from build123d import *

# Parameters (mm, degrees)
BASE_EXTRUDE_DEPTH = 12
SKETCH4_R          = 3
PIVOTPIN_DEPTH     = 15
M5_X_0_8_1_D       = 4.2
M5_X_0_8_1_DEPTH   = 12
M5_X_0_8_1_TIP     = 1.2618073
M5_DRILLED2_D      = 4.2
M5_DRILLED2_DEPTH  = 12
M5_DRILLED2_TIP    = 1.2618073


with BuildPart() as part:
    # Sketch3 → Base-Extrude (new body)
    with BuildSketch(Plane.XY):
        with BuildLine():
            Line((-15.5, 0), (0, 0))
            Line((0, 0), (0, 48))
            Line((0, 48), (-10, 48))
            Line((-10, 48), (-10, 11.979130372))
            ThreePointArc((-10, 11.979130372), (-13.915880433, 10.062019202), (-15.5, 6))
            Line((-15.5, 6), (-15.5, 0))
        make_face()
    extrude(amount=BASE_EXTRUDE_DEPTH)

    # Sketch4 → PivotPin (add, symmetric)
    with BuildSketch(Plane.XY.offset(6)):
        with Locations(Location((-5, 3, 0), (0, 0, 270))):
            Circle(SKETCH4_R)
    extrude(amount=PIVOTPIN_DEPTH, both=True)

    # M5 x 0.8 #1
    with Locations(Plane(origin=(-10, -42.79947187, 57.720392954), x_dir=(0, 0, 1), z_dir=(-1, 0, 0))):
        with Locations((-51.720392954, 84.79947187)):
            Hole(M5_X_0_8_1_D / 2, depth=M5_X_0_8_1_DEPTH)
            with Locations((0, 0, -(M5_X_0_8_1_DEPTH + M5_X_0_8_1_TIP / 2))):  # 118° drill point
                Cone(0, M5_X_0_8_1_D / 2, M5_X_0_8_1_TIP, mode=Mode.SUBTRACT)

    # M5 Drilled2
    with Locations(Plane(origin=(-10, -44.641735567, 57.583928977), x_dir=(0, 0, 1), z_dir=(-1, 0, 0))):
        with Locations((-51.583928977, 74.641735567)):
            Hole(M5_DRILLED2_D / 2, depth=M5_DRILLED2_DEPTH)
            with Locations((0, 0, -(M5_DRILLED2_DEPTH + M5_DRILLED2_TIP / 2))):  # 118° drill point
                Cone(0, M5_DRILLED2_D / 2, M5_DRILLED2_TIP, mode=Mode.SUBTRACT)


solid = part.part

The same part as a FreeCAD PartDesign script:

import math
import FreeCAD as App
import Part
import Sketcher
from FreeCAD import Vector
Q = App.Units.Quantity

doc = App.newDocument("Part")
body = doc.addObject("PartDesign::Body", "Body")

# Sketch on XY plane
sketch1 = body.newObject("Sketcher::SketchObject", "Sketch")
sketch1.AttachmentSupport = (doc.getObject("XY_Plane"), [""])
sketch1.MapMode = "FlatFace"
sketch1.addGeometry([
    Part.LineSegment(Vector(-16, 0, 0), Vector(0, 0, 0)),  # 0
    Part.LineSegment(Vector(0, 0, 0), Vector(0, 48, 0)),  # 1
    Part.LineSegment(Vector(0, 48, 0), Vector(-10, 48, 0)),  # 2
    Part.LineSegment(Vector(-10, 48, 0), Vector(-10, 12, 0)),  # 3
    Part.ArcOfCircle(Part.Circle(Vector(-9, 6, 0), Vector(0, 0, 1), 6), math.radians(95), math.radians(180)),  # 4
    Part.LineSegment(Vector(-16, 6, 0), Vector(-16, 0, 0)),  # 5
], False)
sketch1.addConstraint([
    Sketcher.Constraint("Coincident", 0, 2, 1, 1),
    Sketcher.Constraint("Coincident", 1, 2, 2, 1),
    Sketcher.Constraint("Coincident", 2, 2, 3, 1),
    Sketcher.Constraint("Coincident", 3, 2, 4, 1),
    Sketcher.Constraint("Tangent", 4, 2, 5, 1),
    Sketcher.Constraint("Coincident", 5, 2, 0, 1),
    Sketcher.Constraint("Horizontal", 0),
    Sketcher.Constraint("Vertical", 1),
    Sketcher.Constraint("Horizontal", 2),
    Sketcher.Constraint("Vertical", 3),
    Sketcher.Constraint("Vertical", 5),
    Sketcher.Constraint("Coincident", 0, 2, -1, 1),
    Sketcher.Constraint("Radius", 4, Q("6 mm")),
    Sketcher.Constraint("DistanceX", 2, 2, 2, 1, Q("10 mm")),
    Sketcher.Constraint("DistanceY", 1, 1, 1, 2, Q("48 mm")),
    Sketcher.Constraint("DistanceY", 5, 2, 5, 1, Q("6 mm")),
    Sketcher.Constraint("DistanceX", 0, 1, 0, 2, Q("15.5 mm")),
])
pad1 = body.newObject("PartDesign::Pad", "Pad")
pad1.Profile = sketch1
pad1.Length = 12

# Sketch on XY plane
sketch2 = body.newObject("Sketcher::SketchObject", "Sketch001")
sketch2.AttachmentSupport = (doc.getObject("XY_Plane"), [""])
sketch2.MapMode = "FlatFace"
sketch2.AttachmentOffset = App.Placement(Vector(0, 0, 6), App.Rotation())
sketch2.addGeometry(Part.Circle(Vector(-5, 3, 0), Vector(0, 0, 1), 3), False)
sketch2.addConstraint([
    Sketcher.Constraint("Diameter", 0, Q("6 mm")),
    Sketcher.Constraint("DistanceX", 0, 3, -1, 1, Q("5 mm")),
    Sketcher.Constraint("DistanceY", -1, 1, 0, 3, Q("3 mm")),
])
pad2 = body.newObject("PartDesign::Pad", "Pad001")
pad2.Profile = sketch2
pad2.Length = 30
pad2.Midplane = True

# Sketch on YZ plane
sketch3 = body.newObject("Sketcher::SketchObject", "Sketch002")
sketch3.AttachmentSupport = (doc.getObject("YZ_Plane"), [""])
sketch3.MapMode = "FlatFace"
sketch3.AttachmentOffset = App.Placement(Vector(0, 0, -10), App.Rotation())
sketch3.addGeometry(Part.Circle(Vector(42, 6, 0), Vector(0, 0, 1), 2.1), False)
sketch3.addConstraint([
    Sketcher.Constraint("Diameter", 0, Q("4.2 mm")),
    Sketcher.Constraint("DistanceX", -1, 1, 0, 3, Q("42 mm")),
    Sketcher.Constraint("DistanceY", -1, 1, 0, 3, Q("6 mm")),
])
doc.recompute()
hole = body.newObject("PartDesign::Hole", "Hole")
hole.Profile = sketch3
hole.ThreadType = "None"
hole.Diameter = 4.2
hole.DepthType = "Dimension"
hole.Depth = 12
hole.DrillPoint = "Angled"
hole.DrillPointAngle = 118
hole.Reversed = True

# Sketch on YZ plane
sketch4 = body.newObject("Sketcher::SketchObject", "Sketch003")
sketch4.AttachmentSupport = (doc.getObject("YZ_Plane"), [""])
sketch4.MapMode = "FlatFace"
sketch4.AttachmentOffset = App.Placement(Vector(0, 0, -10), App.Rotation())
sketch4.addGeometry(Part.Circle(Vector(30, 6, 0), Vector(0, 0, 1), 2.1), False)
sketch4.addConstraint([
    Sketcher.Constraint("Diameter", 0, Q("4.2 mm")),
    Sketcher.Constraint("DistanceX", -1, 1, 0, 3, Q("30 mm")),
    Sketcher.Constraint("DistanceY", -1, 1, 0, 3, Q("6 mm")),
])
doc.recompute()
hole2 = body.newObject("PartDesign::Hole", "Hole001")
hole2.Profile = sketch4
hole2.ThreadType = "None"
hole2.Diameter = 4.2
hole2.DepthType = "Dimension"
hole2.Depth = 12
hole2.DrillPoint = "Angled"
hole2.DrillPointAngle = 118
hole2.Reversed = True

doc.recompute()
